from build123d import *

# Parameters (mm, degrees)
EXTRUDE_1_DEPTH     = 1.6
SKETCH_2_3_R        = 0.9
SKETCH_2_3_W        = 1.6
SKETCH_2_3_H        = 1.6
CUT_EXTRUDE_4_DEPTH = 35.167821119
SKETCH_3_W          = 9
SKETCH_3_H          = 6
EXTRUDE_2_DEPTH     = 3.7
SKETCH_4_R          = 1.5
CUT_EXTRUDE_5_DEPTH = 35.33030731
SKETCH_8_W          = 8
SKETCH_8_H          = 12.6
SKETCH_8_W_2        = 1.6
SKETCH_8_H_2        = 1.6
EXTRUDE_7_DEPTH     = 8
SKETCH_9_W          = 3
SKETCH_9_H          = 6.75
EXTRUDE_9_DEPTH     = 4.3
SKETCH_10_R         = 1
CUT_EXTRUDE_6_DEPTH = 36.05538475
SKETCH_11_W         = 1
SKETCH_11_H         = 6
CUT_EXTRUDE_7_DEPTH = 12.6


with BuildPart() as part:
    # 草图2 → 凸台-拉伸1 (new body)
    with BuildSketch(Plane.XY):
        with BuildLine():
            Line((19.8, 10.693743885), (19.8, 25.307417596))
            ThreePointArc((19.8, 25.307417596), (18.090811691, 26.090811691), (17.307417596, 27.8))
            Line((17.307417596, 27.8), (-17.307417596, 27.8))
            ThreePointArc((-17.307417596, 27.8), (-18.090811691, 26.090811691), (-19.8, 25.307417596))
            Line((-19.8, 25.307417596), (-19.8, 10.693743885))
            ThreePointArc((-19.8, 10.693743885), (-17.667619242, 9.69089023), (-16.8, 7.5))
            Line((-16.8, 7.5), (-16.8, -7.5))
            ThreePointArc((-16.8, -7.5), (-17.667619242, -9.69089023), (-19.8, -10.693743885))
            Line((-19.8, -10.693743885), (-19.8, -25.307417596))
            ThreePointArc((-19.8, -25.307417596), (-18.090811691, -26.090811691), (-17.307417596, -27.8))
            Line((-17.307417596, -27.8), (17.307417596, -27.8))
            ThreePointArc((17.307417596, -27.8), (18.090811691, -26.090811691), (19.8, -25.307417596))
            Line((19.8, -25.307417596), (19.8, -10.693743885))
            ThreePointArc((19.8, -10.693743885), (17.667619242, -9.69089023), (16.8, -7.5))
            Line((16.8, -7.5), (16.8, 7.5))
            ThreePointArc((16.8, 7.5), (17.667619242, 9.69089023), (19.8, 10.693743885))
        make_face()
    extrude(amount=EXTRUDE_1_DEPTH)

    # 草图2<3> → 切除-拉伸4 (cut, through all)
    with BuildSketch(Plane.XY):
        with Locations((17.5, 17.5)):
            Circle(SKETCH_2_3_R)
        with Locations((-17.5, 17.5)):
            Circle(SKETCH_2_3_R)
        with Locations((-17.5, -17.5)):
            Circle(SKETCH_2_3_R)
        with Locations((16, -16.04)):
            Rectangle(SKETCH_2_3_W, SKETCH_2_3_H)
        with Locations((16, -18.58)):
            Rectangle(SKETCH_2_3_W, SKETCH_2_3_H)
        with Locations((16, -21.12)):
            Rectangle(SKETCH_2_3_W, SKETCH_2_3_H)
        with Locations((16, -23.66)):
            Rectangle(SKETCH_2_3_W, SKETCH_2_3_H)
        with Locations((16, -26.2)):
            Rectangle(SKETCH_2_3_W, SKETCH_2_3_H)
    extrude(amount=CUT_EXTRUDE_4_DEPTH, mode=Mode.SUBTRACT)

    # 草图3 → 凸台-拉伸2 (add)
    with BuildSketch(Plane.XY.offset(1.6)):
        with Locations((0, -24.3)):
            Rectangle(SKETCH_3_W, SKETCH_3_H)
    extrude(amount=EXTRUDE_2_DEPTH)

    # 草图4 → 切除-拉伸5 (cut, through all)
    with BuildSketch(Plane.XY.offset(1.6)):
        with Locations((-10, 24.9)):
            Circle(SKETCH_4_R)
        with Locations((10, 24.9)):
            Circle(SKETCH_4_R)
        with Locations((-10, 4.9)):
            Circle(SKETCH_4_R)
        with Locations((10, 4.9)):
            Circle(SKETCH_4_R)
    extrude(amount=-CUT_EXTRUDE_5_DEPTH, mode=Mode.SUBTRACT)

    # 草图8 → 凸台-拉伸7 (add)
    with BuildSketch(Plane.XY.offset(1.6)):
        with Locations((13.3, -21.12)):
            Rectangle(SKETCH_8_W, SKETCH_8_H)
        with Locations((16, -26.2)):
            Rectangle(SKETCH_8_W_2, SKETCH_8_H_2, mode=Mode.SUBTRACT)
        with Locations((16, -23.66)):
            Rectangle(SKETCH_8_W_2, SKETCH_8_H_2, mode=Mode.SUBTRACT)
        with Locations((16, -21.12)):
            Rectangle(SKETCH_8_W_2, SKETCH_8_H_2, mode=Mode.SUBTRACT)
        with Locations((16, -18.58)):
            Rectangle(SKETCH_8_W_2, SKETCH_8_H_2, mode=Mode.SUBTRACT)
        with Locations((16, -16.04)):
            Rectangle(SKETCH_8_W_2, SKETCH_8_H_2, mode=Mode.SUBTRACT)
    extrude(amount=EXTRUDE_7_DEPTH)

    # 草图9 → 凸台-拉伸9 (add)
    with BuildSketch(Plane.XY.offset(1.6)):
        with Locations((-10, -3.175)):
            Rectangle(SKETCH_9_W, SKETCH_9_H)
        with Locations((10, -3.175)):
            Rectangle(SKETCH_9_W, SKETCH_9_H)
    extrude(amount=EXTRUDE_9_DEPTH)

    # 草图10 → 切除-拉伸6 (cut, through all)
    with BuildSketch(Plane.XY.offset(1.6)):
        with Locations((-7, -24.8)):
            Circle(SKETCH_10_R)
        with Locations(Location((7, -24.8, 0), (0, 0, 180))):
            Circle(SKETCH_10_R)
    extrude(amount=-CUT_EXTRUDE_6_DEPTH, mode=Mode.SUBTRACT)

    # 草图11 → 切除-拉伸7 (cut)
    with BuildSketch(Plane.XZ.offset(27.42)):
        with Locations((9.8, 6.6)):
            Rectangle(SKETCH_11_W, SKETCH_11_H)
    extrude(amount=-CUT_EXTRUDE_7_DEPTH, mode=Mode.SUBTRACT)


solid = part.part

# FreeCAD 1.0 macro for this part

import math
import FreeCAD as App
import Part
import Sketcher
Q = App.Units.Quantity

doc = App.newDocument("Part")
body = doc.addObject("PartDesign::Body", "Body")

sketch1 = doc.addObject("Sketcher::SketchObject", "Sketch")
body.addObject(sketch1)
sketch1.AttachmentSupport = (doc.XY_Plane, [""])
sketch1.MapMode = "FlatFace"
sketch1.addGeometry([
    Part.LineSegment(App.Vector(19.8, 10.7, 0), App.Vector(19.8, 25.3, 0)),
    Part.ArcOfCircle(Part.Circle(App.Vector(20, 28, 0), App.Vector(0, 0, 1), 2.7), math.radians(-176), math.radians(-94)),
    Part.LineSegment(App.Vector(17.3, 27.8, 0), App.Vector(-17.3, 27.8, 0)),
    Part.ArcOfCircle(Part.Circle(App.Vector(-20, 28, 0), App.Vector(0, 0, 1), 2.7), math.radians(-86), math.radians(-4)),
    Part.LineSegment(App.Vector(-19.8, 25.3, 0), App.Vector(-19.8, 10.7, 0)),
    Part.ArcOfCircle(Part.Circle(App.Vector(-20, 7.5, 0), App.Vector(0, 0, 1), 3.2), math.radians(0), math.radians(86)),
    Part.LineSegment(App.Vector(-16.8, 7.5, 0), App.Vector(-16.8, -7.5, 0)),
    Part.ArcOfCircle(Part.Circle(App.Vector(-20, -7.5, 0), App.Vector(0, 0, 1), 3.2), math.radians(-86), math.radians(0)),
    Part.LineSegment(App.Vector(-19.8, -10.7, 0), App.Vector(-19.8, -25.3, 0)),
    Part.ArcOfCircle(Part.Circle(App.Vector(-20, -28, 0), App.Vector(0, 0, 1), 2.7), math.radians(4), math.radians(86)),
    Part.LineSegment(App.Vector(-17.3, -27.8, 0), App.Vector(17.3, -27.8, 0)),
    Part.ArcOfCircle(Part.Circle(App.Vector(20, -28, 0), App.Vector(0, 0, 1), 2.7), math.radians(94), math.radians(176)),
    Part.LineSegment(App.Vector(19.8, -25.3, 0), App.Vector(19.8, -10.7, 0)),
    Part.ArcOfCircle(Part.Circle(App.Vector(20, -7.5, 0), App.Vector(0, 0, 1), 3.2), math.radians(180), math.radians(266)),
    Part.LineSegment(App.Vector(16.8, -7.5, 0), App.Vector(16.8, 7.5, 0)),
    Part.ArcOfCircle(Part.Circle(App.Vector(20, 7.5, 0), App.Vector(0, 0, 1), 3.2), math.radians(94), math.radians(180)),
], False)
sketch1.addConstraint([
    Sketcher.Constraint("Coincident", 0, 2, 1, 2),
    Sketcher.Constraint("Coincident", 1, 1, 2, 1),
    Sketcher.Constraint("Coincident", 2, 2, 3, 2),
    Sketcher.Constraint("Coincident", 3, 1, 4, 1),
    Sketcher.Constraint("Coincident", 4, 2, 5, 2),
    Sketcher.Constraint("Tangent", 5, 1, 6, 1),
    Sketcher.Constraint("Tangent", 6, 2, 7, 2),
    Sketcher.Constraint("Coincident", 7, 1, 8, 1),
    Sketcher.Constraint("Coincident", 8, 2, 9, 2),
    Sketcher.Constraint("Coincident", 9, 1, 10, 1),
    Sketcher.Constraint("Coincident", 10, 2, 11, 2),
    Sketcher.Constraint("Coincident", 11, 1, 12, 1),
    Sketcher.Constraint("Coincident", 12, 2, 13, 2),
    Sketcher.Constraint("Tangent", 13, 1, 14, 1),
    Sketcher.Constraint("Tangent", 14, 2, 15, 2),
    Sketcher.Constraint("Coincident", 15, 1, 0, 1),
    Sketcher.Constraint("Vertical", 0),
    Sketcher.Constraint("Horizontal", 2),
    Sketcher.Constraint("Vertical", 4),
    Sketcher.Constraint("Vertical", 6),
    Sketcher.Constraint("Vertical", 8),
    Sketcher.Constraint("Horizontal", 10),
    Sketcher.Constraint("Vertical", 12),
    Sketcher.Constraint("Vertical", 14),
    Sketcher.Constraint("Equal", 1, 3),
    Sketcher.Constraint("Equal", 5, 7),
    Sketcher.Constraint("Equal", 3, 9),
    Sketcher.Constraint("Equal", 9, 11),
    Sketcher.Constraint("Equal", 7, 13),
    Sketcher.Constraint("Equal", 13, 15),
    Sketcher.Constraint("Symmetric", 1, 3, 9, 3, -1, 1),
    Sketcher.Constraint("Symmetric", 3, 3, 11, 3, -1, 1),
    Sketcher.Constraint("Symmetric", 5, 3, 13, 3, -1, 1),
    Sketcher.Constraint("Symmetric", 7, 1, 15, 1, -1, 1),
    Sketcher.Constraint("Symmetric", 1, 3, 3, 3, -2),
    Sketcher.Constraint("Symmetric", 7, 1, 12, 2, -2),
    Sketcher.Constraint("Horizontal", 0, 2, 3, 1),
    Sketcher.Constraint("Vertical", 3, 3, 5, 3),
    Sketcher.Constraint("Vertical", 2, 2, 9, 1),
    Sketcher.Constraint("Radius", 1, Q("2.7 mm")),
    Sketcher.Constraint("Radius", 5, Q("3.2 mm")),
    Sketcher.Constraint("DistanceY", 6, 2, 6, 1, Q("15 mm")),
    Sketcher.Constraint("DistanceX", -1, 1, 1, 3, Q("20 mm")),
    Sketcher.Constraint("DistanceY", -1, 1, 1, 3, Q("28 mm")),
    Sketcher.Constraint("DistanceX", 4, 2, 5, 1, Q("3 mm")),
    Sketcher.Constraint("DistanceY", -1, 1, 1, 1, Q("27.8 mm")),
])
pad1 = doc.addObject("PartDesign::Pad", "Pad")
body.addObject(pad1)
pad1.Profile = sketch1
pad1.Length = 1.6

sketch2 = doc.addObject("Sketcher::SketchObject", "Sketch001")
body.addObject(sketch2)
sketch2.AttachmentSupport = (doc.XY_Plane, [""])
sketch2.MapMode = "FlatFace"
sketch2.addGeometry([
    Part.Circle(App.Vector(17.5, 17.5, 0), App.Vector(0, 0, 1), 0.9),
    Part.Circle(App.Vector(-17.5, 17.5, 0), App.Vector(0, 0, 1), 0.9),
    Part.Circle(App.Vector(-17.5, -17.5, 0), App.Vector(0, 0, 1), 0.9),
    Part.LineSegment(App.Vector(15.2, -15.2, 0), App.Vector(15.2, -16.8, 0)),
    Part.LineSegment(App.Vector(15.2, -16.8, 0), App.Vector(16.8, -16.8, 0)),
    Part.LineSegment(App.Vector(16.8, -16.8, 0), App.Vector(16.8, -15.2, 0)),
    Part.LineSegment(App.Vector(16.8, -15.2, 0), App.Vector(15.2, -15.2, 0)),
    Part.LineSegment(App.Vector(15.2, -17.8, 0), App.Vector(15.2, -19.4, 0)),
    Part.LineSegment(App.Vector(15.2, -19.4, 0), App.Vector(16.8, -19.4, 0)),
    Part.LineSegment(App.Vector(16.8, -19.4, 0), App.Vector(16.8, -17.8, 0)),
    Part.LineSegment(App.Vector(16.8, -17.8, 0), App.Vector(15.2, -17.8, 0)),
    Part.LineSegment(App.Vector(15.2, -20.3, 0), App.Vector(15.2, -21.9, 0)),
    Part.LineSegment(App.Vector(15.2, -21.9, 0), App.Vector(16.8, -21.9, 0)),
    Part.LineSegment(App.Vector(16.8, -21.9, 0), App.Vector(16.8, -20.3, 0)),
    Part.LineSegment(App.Vector(16.8, -20.3, 0), App.Vector(15.2, -20.3, 0)),
    Part.LineSegment(App.Vector(15.2, -22.9, 0), App.Vector(15.2, -24.5, 0)),
    Part.LineSegment(App.Vector(15.2, -24.5, 0), App.Vector(16.8, -24.5, 0)),
    Part.LineSegment(App.Vector(16.8, -24.5, 0), App.Vector(16.8, -22.9, 0)),
    Part.LineSegment(App.Vector(16.8, -22.9, 0), App.Vector(15.2, -22.9, 0)),
    Part.LineSegment(App.Vector(15.2, -25.4, 0), App.Vector(15.2, -27, 0)),
    Part.LineSegment(App.Vector(15.2, -27, 0), App.Vector(16.8, -27, 0)),
    Part.LineSegment(App.Vector(16.8, -27, 0), App.Vector(16.8, -25.4, 0)),
    Part.LineSegment(App.Vector(16.8, -25.4, 0), App.Vector(15.2, -25.4, 0)),
], False)
sketch2.addConstraint([
    Sketcher.Constraint("Coincident", 3, 2, 4, 1),
    Sketcher.Constraint("Coincident", 4, 2, 5, 1),
    Sketcher.Constraint("Coincident", 5, 2, 6, 1),
    Sketcher.Constraint("Coincident", 6, 2, 3, 1),
    Sketcher.Constraint("Coincident", 7, 2, 8, 1),
    Sketcher.Constraint("Coincident", 8, 2, 9, 1),
    Sketcher.Constraint("Coincident", 9, 2, 10, 1),
    Sketcher.Constraint("Coincident", 10, 2, 7, 1),
    Sketcher.Constraint("Coincident", 11, 2, 12, 1),
    Sketcher.Constraint("Coincident", 12, 2, 13, 1),
    Sketcher.Constraint("Coincident", 13, 2, 14, 1),
    Sketcher.Constraint("Coincident", 14, 2, 11, 1),
    Sketcher.Constraint("Coincident", 15, 2, 16, 1),
    Sketcher.Constraint("Coincident", 16, 2, 17, 1),
    Sketcher.Constraint("Coincident", 17, 2, 18, 1),
    Sketcher.Constraint("Coincident", 18, 2, 15, 1),
    Sketcher.Constraint("Coincident", 19, 2, 20, 1),
    Sketcher.Constraint("Coincident", 20, 2, 21, 1),
    Sketcher.Constraint("Coincident", 21, 2, 22, 1),
    Sketcher.Constraint("Coincident", 22, 2, 19, 1),
    Sketcher.Constraint("Vertical", 3),
    Sketcher.Constraint("Horizontal", 4),
    Sketcher.Constraint("Vertical", 5),
    Sketcher.Constraint("Horizontal", 6),
    Sketcher.Constraint("Vertical", 7),
    Sketcher.Constraint("Horizontal", 8),
    Sketcher.Constraint("Vertical", 9),
    Sketcher.Constraint("Horizontal", 10),
    Sketcher.Constraint("Vertical", 11),
    Sketcher.Constraint("Horizontal", 12),
    Sketcher.Constraint("Vertical", 13),
    Sketcher.Constraint("Horizontal", 14),
    Sketcher.Constraint("Vertical", 15),
    Sketcher.Constraint("Horizontal", 16),
    Sketcher.Constraint("Vertical", 17),
    Sketcher.Constraint("Horizontal", 18),
    Sketcher.Constraint("Vertical", 19),
    Sketcher.Constraint("Horizontal", 20),
    Sketcher.Constraint("Vertical", 21),
    Sketcher.Constraint("Horizontal", 22),
    Sketcher.Constraint("Equal", 0, 1),
    Sketcher.Constraint("Equal", 1, 2),
    Sketcher.Constraint("Symmetric", 0, 3, 2, 3, -1, 1),
    Sketcher.Constraint("Symmetric", 0, 3, 1, 3, -2),
    Sketcher.Constraint("Vertical", 6, 2, 7, 2),
    Sketcher.Constraint("Vertical", 5, 2, 8, 2),
    Sketcher.Constraint("Vertical", 10, 2, 11, 2),
    Sketcher.Constraint("Vertical", 9, 2, 12, 2),
    Sketcher.Constraint("Vertical", 14, 2, 15, 2),
    Sketcher.Constraint("Vertical", 13, 2, 16, 2),
    Sketcher.Constraint("Vertical", 18, 2, 19, 2),
    Sketcher.Constraint("Vertical", 17, 2, 20, 2),
    Sketcher.Constraint("Equal", 22, 3),
    Sketcher.Constraint("Equal", 5, 7),
    Sketcher.Constraint("Equal", 9, 11),
    Sketcher.Constraint("Equal", 13, 15),
    Sketcher.Constraint("Equal", 17, 19),
    Sketcher.Constraint("Diameter", 0, Q("1.8 mm")),
    Sketcher.Constraint("DistanceX", 4, 1, 4, 2, Q("1.6 mm")),
    Sketcher.Constraint("DistanceY", 19, 2, -1, 1, Q("27 mm")),
    Sketcher.Constraint("DistanceX", 1, 3, 0, 3, Q("35 mm")),
    Sketcher.Constraint("DistanceY", 2, 3, 1, 3, Q("35 mm")),
    Sketcher.Constraint("DistanceX", -1, 1, 3, 2, Q("15.2 mm")),
    Sketcher.Constraint("DistanceY", 3, 2, -1, 1, Q("16.84 mm")),
    Sketcher.Constraint("DistanceY", 7, 2, -1, 1, Q("19.38 mm")),
    Sketcher.Constraint("DistanceY", 11, 2, -1, 1, Q("21.92 mm")),
    Sketcher.Constraint("DistanceY", 15, 2, -1, 1, Q("24.46 mm")),
])
pocket1 = doc.addObject("PartDesign::Pocket", "Pocket")
body.addObject(pocket1)
pocket1.Profile = sketch2
pocket1.Type = "ThroughAll"
pocket1.Reversed = True

sketch3 = doc.addObject("Sketcher::SketchObject", "Sketch002")
body.addObject(sketch3)
sketch3.AttachmentSupport = (doc.XY_Plane, [""])
sketch3.MapMode = "FlatFace"
sketch3.AttachmentOffset = App.Placement(App.Vector(0, 0, 1.6), App.Rotation())
sketch3.addGeometry([
    Part.LineSegment(App.Vector(-4, -21, 0), App.Vector(-4, -27, 0)),
    Part.LineSegment(App.Vector(-4, -27, 0), App.Vector(4, -27, 0)),
    Part.LineSegment(App.Vector(4, -27, 0), App.Vector(4, -21, 0)),
    Part.LineSegment(App.Vector(4, -21, 0), App.Vector(-4, -21, 0)),
], False)
sketch3.addConstraint([
    Sketcher.Constraint("Coincident", 0, 2, 1, 1),
    Sketcher.Constraint("Coincident", 1, 2, 2, 1),
    Sketcher.Constraint("Coincident", 2, 2, 3, 1),
    Sketcher.Constraint("Coincident", 3, 2, 0, 1),
    Sketcher.Constraint("Vertical", 0),
    Sketcher.Constraint("Horizontal", 1),
    Sketcher.Constraint("Vertical", 2),
    Sketcher.Constraint("Horizontal", 3),
    Sketcher.Constraint("DistanceX", 1, 1, 1, 2, Q("9 mm")),
    Sketcher.Constraint("DistanceY", 0, 2, 0, 1, Q("6 mm")),
    Sketcher.Constraint("DistanceX", 0, 2, -1, 1, Q("4.5 mm")),
    Sketcher.Constraint("DistanceY", 0, 2, -1, 1, Q("27.3 mm")),
])
pad2 = doc.addObject("PartDesign::Pad", "Pad001")
body.addObject(pad2)
pad2.Profile = sketch3
pad2.Length = 3.7

sketch4 = doc.addObject("Sketcher::SketchObject", "Sketch003")
body.addObject(sketch4)
sketch4.AttachmentSupport = (doc.XY_Plane, [""])
sketch4.MapMode = "FlatFace"
sketch4.AttachmentOffset = App.Placement(App.Vector(0, 0, 1.6), App.Rotation())
sketch4.addGeometry([
    Part.Circle(App.Vector(-10, 24.9, 0), App.Vector(0, 0, 1), 1.5),
    Part.Circle(App.Vector(10, 24.9, 0), App.Vector(0, 0, 1), 1.5),
    Part.Circle(App.Vector(-10, 4.9, 0), App.Vector(0, 0, 1), 1.5),
    Part.Circle(App.Vector(10, 4.9, 0), App.Vector(0, 0, 1), 1.5),
], False)
sketch4.addConstraint([
    Sketcher.Constraint("Equal", 0, 1),
    Sketcher.Constraint("Equal", 1, 2),
    Sketcher.Constraint("Equal", 2, 3),
    Sketcher.Constraint("Symmetric", 0, 3, 1, 3, -2),
    Sketcher.Constraint("Symmetric", 2, 3, 3, 3, -2),
    Sketcher.Constraint("Vertical", 0, 3, 2, 3),
    Sketcher.Constraint("Diameter", 0, Q("3 mm")),
    Sketcher.Constraint("DistanceX", 0, 3, -1, 1, Q("10 mm")),
    Sketcher.Constraint("DistanceY", 2, 3, 0, 3, Q("20 mm")),
    Sketcher.Constraint("DistanceY", -1, 1, 0, 3, Q("24.9 mm")),
])
pocket2 = doc.addObject("PartDesign::Pocket", "Pocket001")
body.addObject(pocket2)
pocket2.Profile = sketch4
pocket2.Type = "ThroughAll"

sketch5 = doc.addObject("Sketcher::SketchObject", "Sketch004")
body.addObject(sketch5)
sketch5.AttachmentSupport = (doc.XY_Plane, [""])
sketch5.MapMode = "FlatFace"
sketch5.AttachmentOffset = App.Placement(App.Vector(0, 0, 1.6), App.Rotation())
sketch5.addGeometry([
    Part.LineSegment(App.Vector(9.3, -14.8, 0), App.Vector(9.3, -27.4, 0)),
    Part.LineSegment(App.Vector(9.3, -27.4, 0), App.Vector(17.3, -27.4, 0)),
    Part.LineSegment(App.Vector(17.3, -27.4, 0), App.Vector(17.3, -14.8, 0)),
    Part.LineSegment(App.Vector(17.3, -14.8, 0), App.Vector(9.3, -14.8, 0)),
    Part.LineSegment(App.Vector(16.8, -27, 0), App.Vector(15.2, -27, 0)),
    Part.LineSegment(App.Vector(15.2, -27, 0), App.Vector(15.2, -25.4, 0)),
    Part.LineSegment(App.Vector(15.2, -25.4, 0), App.Vector(16.8, -25.4, 0)),
    Part.LineSegment(App.Vector(16.8, -25.4, 0), App.Vector(16.8, -27, 0)),
    Part.LineSegment(App.Vector(16.8, -24.5, 0), App.Vector(15.2, -24.5, 0)),
    Part.LineSegment(App.Vector(15.2, -24.5, 0), App.Vector(15.2, -22.9, 0)),
    Part.LineSegment(App.Vector(15.2, -22.9, 0), App.Vector(16.8, -22.9, 0)),
    Part.LineSegment(App.Vector(16.8, -22.9, 0), App.Vector(16.8, -24.5, 0)),
    Part.LineSegment(App.Vector(16.8, -21.9, 0), App.Vector(15.2, -21.9, 0)),
    Part.LineSegment(App.Vector(15.2, -21.9, 0), App.Vector(15.2, -20.3, 0)),
    Part.LineSegment(App.Vector(15.2, -20.3, 0), App.Vector(16.8, -20.3, 0)),
    Part.LineSegment(App.Vector(16.8, -20.3, 0), App.Vector(16.8, -21.9, 0)),
    Part.LineSegment(App.Vector(16.8, -19.4, 0), App.Vector(15.2, -19.4, 0)),
    Part.LineSegment(App.Vector(15.2, -19.4, 0), App.Vector(15.2, -17.8, 0)),
    Part.LineSegment(App.Vector(15.2, -17.8, 0), App.Vector(16.8, -17.8, 0)),
    Part.LineSegment(App.Vector(16.8, -17.8, 0), App.Vector(16.8, -19.4, 0)),
    Part.LineSegment(App.Vector(16.8, -16.8, 0), App.Vector(15.2, -16.8, 0)),
    Part.LineSegment(App.Vector(15.2, -16.8, 0), App.Vector(15.2, -15.2, 0)),
    Part.LineSegment(App.Vector(15.2, -15.2, 0), App.Vector(16.8, -15.2, 0)),
    Part.LineSegment(App.Vector(16.8, -15.2, 0), App.Vector(16.8, -16.8, 0)),
], False)
sketch5.addConstraint([
    Sketcher.Constraint("Coincident", 0, 2, 1, 1),
    Sketcher.Constraint("Coincident", 1, 2, 2, 1),
    Sketcher.Constraint("Coincident", 2, 2, 3, 1),
    Sketcher.Constraint("Coincident", 3, 2, 0, 1),
    Sketcher.Constraint("Coincident", 4, 2, 5, 1),
    Sketcher.Constraint("Coincident", 5, 2, 6, 1),
    Sketcher.Constraint("Coincident", 6, 2, 7, 1),
    Sketcher.Constraint("Coincident", 7, 2, 4, 1),
    Sketcher.Constraint("Coincident", 8, 2, 9, 1),
    Sketcher.Constraint("Coincident", 9, 2, 10, 1),
    Sketcher.Constraint("Coincident", 10, 2, 11, 1),
    Sketcher.Constraint("Coincident", 11, 2, 8, 1),
    Sketcher.Constraint("Coincident", 12, 2, 13, 1),
    Sketcher.Constraint("Coincident", 13, 2, 14, 1),
    Sketcher.Constraint("Coincident", 14, 2, 15, 1),
    Sketcher.Constraint("Coincident", 15, 2, 12, 1),
    Sketcher.Constraint("Coincident", 16, 2, 17, 1),
    Sketcher.Constraint("Coincident", 17, 2, 18, 1),
    Sketcher.Constraint("Coincident", 18, 2, 19, 1),
    Sketcher.Constraint("Coincident", 19, 2, 16, 1),
    Sketcher.Constraint("Coincident", 20, 2, 21, 1),
    Sketcher.Constraint("Coincident", 21, 2, 22, 1),
    Sketcher.Constraint("Coincident", 22, 2, 23, 1),
    Sketcher.Constraint("Coincident", 23, 2, 20, 1),
    Sketcher.Constraint("Vertical", 0),
    Sketcher.Constraint("Horizontal", 1),
    Sketcher.Constraint("Vertical", 2),
    Sketcher.Constraint("Horizontal", 3),
    Sketcher.Constraint("Horizontal", 4),
    Sketcher.Constraint("Vertical", 5),
    Sketcher.Constraint("Horizontal", 6),
    Sketcher.Constraint("Vertical", 7),
    Sketcher.Constraint("Horizontal", 8),
    Sketcher.Constraint("Vertical", 9),
    Sketcher.Constraint("Horizontal", 10),
    Sketcher.Constraint("Vertical", 11),
    Sketcher.Constraint("Horizontal", 12),
    Sketcher.Constraint("Vertical", 13),
    Sketcher.Constraint("Horizontal", 14),
    Sketcher.Constraint("Vertical", 15),
    Sketcher.Constraint("Horizontal", 16),
    Sketcher.Constraint("Vertical", 17),
    Sketcher.Constraint("Horizontal", 18),
    Sketcher.Constraint("Vertical", 19),
    Sketcher.Constraint("Horizontal", 20),
    Sketcher.Constraint("Vertical", 21),
    Sketcher.Constraint("Horizontal", 22),
    Sketcher.Constraint("Vertical", 23),
    Sketcher.Constraint("Vertical", 5, 2, 8, 2),
    Sketcher.Constraint("Vertical", 7, 2, 10, 2),
    Sketcher.Constraint("Vertical", 9, 2, 12, 2),
    Sketcher.Constraint("Vertical", 11, 2, 14, 2),
    Sketcher.Constraint("Vertical", 13, 2, 16, 2),
    Sketcher.Constraint("Vertical", 15, 2, 18, 2),
    Sketcher.Constraint("Vertical", 17, 2, 20, 2),
    Sketcher.Constraint("Vertical", 19, 2, 22, 2),
    Sketcher.Constraint("Equal", 22, 5),
    Sketcher.Constraint("Equal", 7, 9),
    Sketcher.Constraint("Equal", 11, 13),
    Sketcher.Constraint("Equal", 15, 17),
    Sketcher.Constraint("Equal", 19, 21),
    Sketcher.Constraint("DistanceX", 1, 1, 1, 2, Q("8 mm")),
    Sketcher.Constraint("DistanceX", 4, 2, 4, 1, Q("1.6 mm")),
    Sketcher.Constraint("DistanceY", 0, 2, 0, 1, Q("12.6 mm")),
    Sketcher.Constraint("DistanceY", 4, 2, -1, 1, Q("27 mm")),
    Sketcher.Constraint("DistanceX", -1, 1, 0, 2, Q("9.3 mm")),
    Sketcher.Constraint("DistanceX", -1, 1, 4, 2, Q("15.2 mm")),
    Sketcher.Constraint("DistanceY", 0, 2, -1, 1, Q("27.42 mm")),
    Sketcher.Constraint("DistanceY", 8, 2, -1, 1, Q("24.46 mm")),
    Sketcher.Constraint("DistanceY", 12, 2, -1, 1, Q("21.92 mm")),
    Sketcher.Constraint("DistanceY", 16, 2, -1, 1, Q("19.38 mm")),
    Sketcher.Constraint("DistanceY", 20, 2, -1, 1, Q("16.84 mm")),
])
pad3 = doc.addObject("PartDesign::Pad", "Pad002")
body.addObject(pad3)
pad3.Profile = sketch5
pad3.Length = 8

sketch6 = doc.addObject("Sketcher::SketchObject", "Sketch005")
body.addObject(sketch6)
sketch6.AttachmentSupport = (doc.XY_Plane, [""])
sketch6.MapMode = "FlatFace"
sketch6.AttachmentOffset = App.Placement(App.Vector(0, 0, 1.6), App.Rotation())
sketch6.addGeometry([
    Part.LineSegment(App.Vector(-11.5, 0.2, 0), App.Vector(-11.5, -6.5, 0)),
    Part.LineSegment(App.Vector(-11.5, -6.5, 0), App.Vector(-8.5, -6.5, 0)),
    Part.LineSegment(App.Vector(-8.5, -6.5, 0), App.Vector(-8.5, 0.2, 0)),
    Part.LineSegment(App.Vector(-8.5, 0.2, 0), App.Vector(-11.5, 0.2, 0)),
    Part.LineSegment(App.Vector(8.5, 0.2, 0), App.Vector(8.5, -6.5, 0)),
    Part.LineSegment(App.Vector(8.5, -6.5, 0), App.Vector(11.5, -6.5, 0)),
    Part.LineSegment(App.Vector(11.5, -6.5, 0), App.Vector(11.5, 0.2, 0)),
    Part.LineSegment(App.Vector(11.5, 0.2, 0), App.Vector(8.5, 0.2, 0)),
], False)
sketch6.addConstraint([
    Sketcher.Constraint("Coincident", 0, 2, 1, 1),
    Sketcher.Constraint("Coincident", 1, 2, 2, 1),
    Sketcher.Constraint("Coincident", 2, 2, 3, 1),
    Sketcher.Constraint("Coincident", 3, 2, 0, 1),
    Sketcher.Constraint("Coincident", 4, 2, 5, 1),
    Sketcher.Constraint("Coincident", 5, 2, 6, 1),
    Sketcher.Constraint("Coincident", 6, 2, 7, 1),
    Sketcher.Constraint("Coincident", 7, 2, 4, 1),
    Sketcher.Constraint("Vertical", 0),
    Sketcher.Constraint("Horizontal", 1),
    Sketcher.Constraint("Vertical", 2),
    Sketcher.Constraint("Horizontal", 3),
    Sketcher.Constraint("Vertical", 4),
    Sketcher.Constraint("Horizontal", 5),
    Sketcher.Constraint("Vertical", 6),
    Sketcher.Constraint("Horizontal", 7),
    Sketcher.Constraint("Symmetric", 1, 2, 4, 2, -2),
    Sketcher.Constraint("Symmetric", 3, 2, 6, 2, -2),
    Sketcher.Constraint("DistanceX", 1, 1, 1, 2, Q("3 mm")),
    Sketcher.Constraint("DistanceX", 1, 2, 4, 2, Q("17 mm")),
    Sketcher.Constraint("DistanceY", 0, 2, 0, 1, Q("6.75 mm")),
    Sketcher.Constraint("DistanceY", -1, 1, 2, 2, Q("0.2 mm")),
])
pad4 = doc.addObject("PartDesign::Pad", "Pad003")
body.addObject(pad4)
pad4.Profile = sketch6
pad4.Length = 4.3

sketch7 = doc.addObject("Sketcher::SketchObject", "Sketch006")
body.addObject(sketch7)
sketch7.AttachmentSupport = (doc.XY_Plane, [""])
sketch7.MapMode = "FlatFace"
sketch7.AttachmentOffset = App.Placement(App.Vector(0, 0, 1.6), App.Rotation())
sketch7.addGeometry([
    Part.Circle(App.Vector(-7, -24.8, 0), App.Vector(0, 0, 1), 1),
    Part.Circle(App.Vector(7, -24.8, 0), App.Vector(0, 0, 1), 1),
], False)
sketch7.addConstraint([
    Sketcher.Constraint("Equal", 0, 1),
    Sketcher.Constraint("Symmetric", 0, 3, 1, 3, -2),
    Sketcher.Constraint("Diameter", 0, Q("2 mm")),
    Sketcher.Constraint("DistanceX", 0, 3, -1, 1, Q("7 mm")),
    Sketcher.Constraint("DistanceY", 0, 3, -1, 1, Q("24.8 mm")),
])
pocket3 = doc.addObject("PartDesign::Pocket", "Pocket002")
body.addObject(pocket3)
pocket3.Profile = sketch7
pocket3.Type = "ThroughAll"

sketch8 = doc.addObject("Sketcher::SketchObject", "Sketch007")
body.addObject(sketch8)
sketch8.AttachmentSupport = (doc.XZ_Plane, [""])
sketch8.MapMode = "FlatFace"
sketch8.AttachmentOffset = App.Placement(App.Vector(0, 0, 27.42), App.Rotation())
sketch8.addGeometry([
    Part.LineSegment(App.Vector(9.3, 9.6, 0), App.Vector(9.3, 3.6, 0)),
    Part.LineSegment(App.Vector(9.3, 3.6, 0), App.Vector(10.3, 3.6, 0)),
    Part.LineSegment(App.Vector(10.3, 3.6, 0), App.Vector(10.3, 9.6, 0)),
    Part.LineSegment(App.Vector(10.3, 9.6, 0), App.Vector(9.3, 9.6, 0)),
], False)
sketch8.addConstraint([
    Sketcher.Constraint("Coincident", 0, 2, 1, 1),
    Sketcher.Constraint("Coincident", 1, 2, 2, 1),
    Sketcher.Constraint("Coincident", 2, 2, 3, 1),
    Sketcher.Constraint("Coincident", 3, 2, 0, 1),
    Sketcher.Constraint("Vertical", 0),
    Sketcher.Constraint("Horizontal", 1),
    Sketcher.Constraint("Vertical", 2),
    Sketcher.Constraint("Horizontal", 3),
    Sketcher.Constraint("DistanceX", 1, 1, 1, 2, Q("1 mm")),
    Sketcher.Constraint("DistanceY", 0, 2, 0, 1, Q("6 mm")),
    Sketcher.Constraint("DistanceX", -1, 1, 0, 2, Q("9.3 mm")),
    Sketcher.Constraint("DistanceY", -1, 1, 0, 2, Q("3.6 mm")),
])
pocket4 = doc.addObject("PartDesign::Pocket", "Pocket003")
body.addObject(pocket4)
pocket4.Profile = sketch8
pocket4.Length = 12.6

doc.recompute()
